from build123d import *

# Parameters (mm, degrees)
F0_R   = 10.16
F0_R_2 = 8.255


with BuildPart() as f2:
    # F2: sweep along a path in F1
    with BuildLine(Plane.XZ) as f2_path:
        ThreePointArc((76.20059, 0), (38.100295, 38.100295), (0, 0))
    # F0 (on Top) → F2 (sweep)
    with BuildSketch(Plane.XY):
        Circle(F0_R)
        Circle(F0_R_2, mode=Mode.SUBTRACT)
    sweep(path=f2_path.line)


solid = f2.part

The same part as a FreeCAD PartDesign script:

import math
import FreeCAD as App
import Part
import Sketcher

V = App.Vector
Q = App.Units.Quantity

doc = App.newDocument("Part")
body = doc.addObject("PartDesign::Body", "Body")

# Sketch on XY plane
sketch1 = body.newObject("Sketcher::SketchObject", "Sketch")
sketch1.AttachmentSupport = (doc.getObject("XY_Plane"), [""])
sketch1.MapMode = "FlatFace"
sketch1.addGeometry(Part.Circle(V(0, 0, 0), V(0, 0, 1), 10), False)
sketch1.addGeometry(Part.Circle(V(0, 0, 0), V(0, 0, 1), 8), False)
sketch1.addConstraint(Sketcher.Constraint("Coincident", 0, 3, -1, 1))
sketch1.addConstraint(Sketcher.Constraint("Coincident", 1, 3, -1, 1))
sketch1.addConstraint(Sketcher.Constraint("Diameter", 0, Q("0.8 in")))
sketch1.addConstraint(Sketcher.Constraint("Diameter", 1, Q("0.65 in")))

# Sketch on XZ plane
sketch2 = body.newObject("Sketcher::SketchObject", "Sketch001")
sketch2.AttachmentSupport = (doc.getObject("XZ_Plane"), [""])
sketch2.MapMode = "FlatFace"
sketch2.addGeometry(Part.ArcOfCircle(Part.Circle(V(38, 0, 0), V(0, 0, 1), 38), math.radians(0), math.radians(180)), False)
sketch2.addConstraint(Sketcher.Constraint("Coincident", 0, 2, -1, 1))
sketch2.addConstraint(Sketcher.Constraint("PointOnObject", 0, 3, -1))
sketch2.addConstraint(Sketcher.Constraint("PointOnObject", 0, 1, -1))
sketch2.addConstraint(Sketcher.Constraint("Radius", 0, 38.100295))
doc.recompute()

additivepipe = body.newObject("PartDesign::AdditivePipe", "AdditivePipe")
additivepipe.Profile = sketch1
additivepipe.Spine = (sketch2, ["Edge1"])

doc.recompute()
